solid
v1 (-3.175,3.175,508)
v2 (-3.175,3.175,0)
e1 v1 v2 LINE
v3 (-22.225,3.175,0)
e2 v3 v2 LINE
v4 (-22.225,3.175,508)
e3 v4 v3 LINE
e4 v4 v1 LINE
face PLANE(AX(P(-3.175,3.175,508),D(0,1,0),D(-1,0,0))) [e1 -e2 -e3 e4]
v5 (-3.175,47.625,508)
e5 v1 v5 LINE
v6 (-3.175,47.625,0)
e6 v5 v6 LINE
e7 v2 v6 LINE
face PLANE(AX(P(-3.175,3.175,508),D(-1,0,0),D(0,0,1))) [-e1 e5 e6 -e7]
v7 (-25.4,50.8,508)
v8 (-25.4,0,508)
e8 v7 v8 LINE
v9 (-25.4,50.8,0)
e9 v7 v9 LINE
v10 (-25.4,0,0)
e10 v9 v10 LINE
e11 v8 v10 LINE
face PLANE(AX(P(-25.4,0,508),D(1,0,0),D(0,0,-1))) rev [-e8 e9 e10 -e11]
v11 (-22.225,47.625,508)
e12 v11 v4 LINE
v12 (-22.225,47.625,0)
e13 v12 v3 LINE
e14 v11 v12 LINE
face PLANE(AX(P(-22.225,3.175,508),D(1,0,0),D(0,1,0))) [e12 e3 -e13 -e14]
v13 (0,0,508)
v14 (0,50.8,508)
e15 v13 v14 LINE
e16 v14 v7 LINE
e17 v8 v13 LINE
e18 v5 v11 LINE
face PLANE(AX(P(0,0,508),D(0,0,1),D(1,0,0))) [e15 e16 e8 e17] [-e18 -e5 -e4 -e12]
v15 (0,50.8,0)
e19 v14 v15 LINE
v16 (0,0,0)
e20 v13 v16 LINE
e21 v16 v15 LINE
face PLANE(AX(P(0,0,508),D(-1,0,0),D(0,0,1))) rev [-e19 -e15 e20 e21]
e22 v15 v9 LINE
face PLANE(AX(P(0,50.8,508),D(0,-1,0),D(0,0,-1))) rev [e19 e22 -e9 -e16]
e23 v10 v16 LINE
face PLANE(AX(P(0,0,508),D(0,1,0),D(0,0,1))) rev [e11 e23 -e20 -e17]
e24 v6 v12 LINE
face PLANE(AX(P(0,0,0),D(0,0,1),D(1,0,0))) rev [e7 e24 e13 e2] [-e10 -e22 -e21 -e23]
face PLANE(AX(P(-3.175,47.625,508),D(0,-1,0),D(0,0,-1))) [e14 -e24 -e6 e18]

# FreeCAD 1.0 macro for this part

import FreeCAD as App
import Part
import Sketcher

V = App.Vector
Q = App.Units.Quantity


def add_polygon(sketch, points):
    """Adds a closed chain of lines whose ends are joined by coincident constraints."""
    first, n = sketch.GeometryCount, len(points)
    for a, b in zip(points, points[1:] + points[:1]):
        sketch.addGeometry(Part.LineSegment(App.Vector(*a, 0), App.Vector(*b, 0)), False)
    for i in range(n):
        sketch.addConstraint(Sketcher.Constraint("Coincident", first + i, 2, first + (i + 1) % n, 1))

doc = App.newDocument("Part")
body = doc.addObject("PartDesign::Body", "Body")

# Sketch on XY plane
sketch1 = body.newObject("Sketcher::SketchObject", "Sketch")
sketch1.AttachmentSupport = (doc.getObject("XY_Plane"), [""])
sketch1.MapMode = "FlatFace"
add_polygon(sketch1, [(-25.4, 50.8), (-25.4, 0), (0, 0), (0, 50.8)])  # lines 0-3
add_polygon(sketch1, [(-3.175, 3.175), (-22.225, 3.175), (-22.225, 47.625), (-3.175, 47.625)])  # lines 4-7
sketch1.addConstraint(Sketcher.Constraint("Vertical", 0))
sketch1.addConstraint(Sketcher.Constraint("Horizontal", 1))
sketch1.addConstraint(Sketcher.Constraint("Vertical", 2))
sketch1.addConstraint(Sketcher.Constraint("Horizontal", 3))
sketch1.addConstraint(Sketcher.Constraint("Horizontal", 4))
sketch1.addConstraint(Sketcher.Constraint("Vertical", 5))
sketch1.addConstraint(Sketcher.Constraint("Horizontal", 6))
sketch1.addConstraint(Sketcher.Constraint("Vertical", 7))
sketch1.addConstraint(Sketcher.Constraint("Coincident", 1, 2, -1, 1))
sketch1.addConstraint(Sketcher.Constraint("DistanceX", 1, 1, 1, 2, Q("1 in")))
sketch1.addConstraint(Sketcher.Constraint("DistanceY", 0, 2, 0, 1, Q("2 in")))
sketch1.addConstraint(Sketcher.Constraint("DistanceX", 4, 2, 4, 1, Q("0.75 in")))
sketch1.addConstraint(Sketcher.Constraint("DistanceY", 5, 1, 5, 2, Q("1.75 in")))
sketch1.addConstraint(Sketcher.Constraint("DistanceX", 4, 2, -1, 1, Q("0.875 in")))
sketch1.addConstraint(Sketcher.Constraint("DistanceY", -1, 1, 4, 2, Q("0.125 in")))
pad1 = body.newObject("PartDesign::Pad", "Pad")
pad1.Profile = sketch1
pad1.Length = Q("20 in")

doc.recompute()
